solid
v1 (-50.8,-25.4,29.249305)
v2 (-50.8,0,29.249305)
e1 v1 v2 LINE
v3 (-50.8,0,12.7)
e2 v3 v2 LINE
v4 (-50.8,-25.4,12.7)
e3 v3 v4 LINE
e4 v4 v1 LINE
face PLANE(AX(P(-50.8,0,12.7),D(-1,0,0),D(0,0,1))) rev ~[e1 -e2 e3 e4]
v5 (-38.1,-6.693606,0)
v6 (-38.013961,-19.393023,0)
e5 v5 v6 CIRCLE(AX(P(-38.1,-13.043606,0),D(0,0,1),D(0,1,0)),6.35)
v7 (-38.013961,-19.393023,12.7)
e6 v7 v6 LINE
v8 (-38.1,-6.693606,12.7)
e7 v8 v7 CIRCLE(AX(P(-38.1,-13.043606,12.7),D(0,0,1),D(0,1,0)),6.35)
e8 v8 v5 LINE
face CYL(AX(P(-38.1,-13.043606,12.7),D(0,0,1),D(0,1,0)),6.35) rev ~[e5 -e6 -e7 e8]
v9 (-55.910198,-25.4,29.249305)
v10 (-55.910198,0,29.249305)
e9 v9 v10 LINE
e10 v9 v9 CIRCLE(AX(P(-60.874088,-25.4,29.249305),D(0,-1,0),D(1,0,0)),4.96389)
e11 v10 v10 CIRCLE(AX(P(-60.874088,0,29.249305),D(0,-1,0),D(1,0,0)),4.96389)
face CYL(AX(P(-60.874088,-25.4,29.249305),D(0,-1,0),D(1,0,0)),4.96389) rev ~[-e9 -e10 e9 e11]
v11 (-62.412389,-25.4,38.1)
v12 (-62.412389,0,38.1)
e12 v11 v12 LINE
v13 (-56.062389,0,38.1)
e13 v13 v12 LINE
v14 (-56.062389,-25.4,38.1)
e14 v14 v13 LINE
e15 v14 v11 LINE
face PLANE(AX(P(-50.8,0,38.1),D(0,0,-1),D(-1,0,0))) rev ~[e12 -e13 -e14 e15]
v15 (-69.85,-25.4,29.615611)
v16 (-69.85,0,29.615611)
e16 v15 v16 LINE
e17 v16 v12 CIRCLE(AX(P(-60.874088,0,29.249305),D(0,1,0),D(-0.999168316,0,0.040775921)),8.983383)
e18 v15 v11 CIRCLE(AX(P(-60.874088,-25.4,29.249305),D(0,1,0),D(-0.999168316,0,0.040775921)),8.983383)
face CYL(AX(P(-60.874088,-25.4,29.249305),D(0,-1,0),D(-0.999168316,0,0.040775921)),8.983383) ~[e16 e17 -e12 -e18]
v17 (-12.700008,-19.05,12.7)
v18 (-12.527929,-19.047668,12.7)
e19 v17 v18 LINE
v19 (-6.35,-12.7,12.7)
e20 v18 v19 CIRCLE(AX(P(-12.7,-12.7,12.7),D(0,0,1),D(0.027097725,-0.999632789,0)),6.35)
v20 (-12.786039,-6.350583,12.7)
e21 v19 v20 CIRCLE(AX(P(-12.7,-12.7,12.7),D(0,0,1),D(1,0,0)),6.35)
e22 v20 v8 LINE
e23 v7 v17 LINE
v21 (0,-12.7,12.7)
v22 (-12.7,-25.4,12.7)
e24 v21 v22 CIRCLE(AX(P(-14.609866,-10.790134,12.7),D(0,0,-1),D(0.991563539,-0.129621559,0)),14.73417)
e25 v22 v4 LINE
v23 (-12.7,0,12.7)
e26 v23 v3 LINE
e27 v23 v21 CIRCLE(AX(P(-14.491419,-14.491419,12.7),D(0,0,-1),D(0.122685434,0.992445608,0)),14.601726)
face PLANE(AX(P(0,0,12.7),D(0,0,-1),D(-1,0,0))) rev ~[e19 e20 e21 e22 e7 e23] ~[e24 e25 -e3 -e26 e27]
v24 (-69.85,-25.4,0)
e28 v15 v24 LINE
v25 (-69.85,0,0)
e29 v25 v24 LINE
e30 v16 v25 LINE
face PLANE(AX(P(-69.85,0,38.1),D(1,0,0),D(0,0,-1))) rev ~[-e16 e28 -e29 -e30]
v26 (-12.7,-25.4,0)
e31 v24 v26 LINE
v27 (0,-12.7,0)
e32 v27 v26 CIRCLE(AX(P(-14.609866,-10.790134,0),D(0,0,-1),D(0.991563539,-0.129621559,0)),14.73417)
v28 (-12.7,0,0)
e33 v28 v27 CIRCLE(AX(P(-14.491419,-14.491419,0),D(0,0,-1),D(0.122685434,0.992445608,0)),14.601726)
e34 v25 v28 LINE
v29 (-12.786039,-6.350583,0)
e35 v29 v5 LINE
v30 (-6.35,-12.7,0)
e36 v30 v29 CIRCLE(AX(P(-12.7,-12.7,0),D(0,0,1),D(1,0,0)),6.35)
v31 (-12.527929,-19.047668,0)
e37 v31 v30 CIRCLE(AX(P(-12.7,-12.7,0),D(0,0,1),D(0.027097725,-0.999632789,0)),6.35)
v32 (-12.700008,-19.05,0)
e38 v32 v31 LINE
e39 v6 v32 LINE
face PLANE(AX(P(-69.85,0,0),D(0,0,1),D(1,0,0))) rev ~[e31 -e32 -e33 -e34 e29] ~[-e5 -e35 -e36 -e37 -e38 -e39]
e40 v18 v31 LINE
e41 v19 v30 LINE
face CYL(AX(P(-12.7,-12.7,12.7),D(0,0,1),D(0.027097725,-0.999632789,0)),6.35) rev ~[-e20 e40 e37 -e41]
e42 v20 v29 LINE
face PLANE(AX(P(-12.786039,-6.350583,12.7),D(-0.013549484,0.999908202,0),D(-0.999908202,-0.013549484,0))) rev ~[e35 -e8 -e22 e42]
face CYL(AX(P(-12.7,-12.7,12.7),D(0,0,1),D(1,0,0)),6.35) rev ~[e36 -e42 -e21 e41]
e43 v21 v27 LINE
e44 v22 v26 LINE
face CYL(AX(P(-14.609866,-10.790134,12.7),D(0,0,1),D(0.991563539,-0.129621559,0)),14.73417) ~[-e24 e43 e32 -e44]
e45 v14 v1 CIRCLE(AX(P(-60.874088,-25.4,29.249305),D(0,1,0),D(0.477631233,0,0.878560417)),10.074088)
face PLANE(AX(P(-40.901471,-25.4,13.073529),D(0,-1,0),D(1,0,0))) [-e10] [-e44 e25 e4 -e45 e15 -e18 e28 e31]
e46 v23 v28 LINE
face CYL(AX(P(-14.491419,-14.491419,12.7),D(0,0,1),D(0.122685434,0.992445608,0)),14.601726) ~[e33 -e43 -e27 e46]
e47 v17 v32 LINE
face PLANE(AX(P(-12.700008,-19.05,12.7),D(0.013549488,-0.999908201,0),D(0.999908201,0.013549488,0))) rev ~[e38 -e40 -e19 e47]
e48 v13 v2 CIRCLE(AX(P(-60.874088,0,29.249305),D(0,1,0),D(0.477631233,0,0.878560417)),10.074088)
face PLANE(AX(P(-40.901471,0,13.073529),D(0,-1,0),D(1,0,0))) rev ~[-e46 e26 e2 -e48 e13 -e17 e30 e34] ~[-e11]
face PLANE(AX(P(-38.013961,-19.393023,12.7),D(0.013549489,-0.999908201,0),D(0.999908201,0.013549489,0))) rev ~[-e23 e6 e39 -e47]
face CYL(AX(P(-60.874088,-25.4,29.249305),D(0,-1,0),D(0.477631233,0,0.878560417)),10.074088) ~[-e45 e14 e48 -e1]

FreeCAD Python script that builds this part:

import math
import FreeCAD as App
import Part
import Sketcher

V = App.Vector
Q = App.Units.Quantity


def add_polygon(sketch, points):
    """Adds a closed chain of lines whose ends are joined by coincident constraints."""
    first, n = sketch.GeometryCount, len(points)
    for a, b in zip(points, points[1:] + points[:1]):
        sketch.addGeometry(Part.LineSegment(App.Vector(*a, 0), App.Vector(*b, 0)), False)
    for i in range(n):
        sketch.addConstraint(Sketcher.Constraint("Coincident", first + i, 2, first + (i + 1) % n, 1))

doc = App.newDocument("Part")
body = doc.addObject("PartDesign::Body", "Body")

sketch1 = body.newObject("Sketcher::SketchObject", "Sketch")
sketch1.AttachmentSupport = (doc.getObject("XZ_Plane"), [""])
sketch1.MapMode = "FlatFace"
add_polygon(sketch1, [(-69.85, 38.1), (-69.85, 0), (0, 0), (0, 12.7), (-50.8, 12.7), (-50.8, 38.1)])
sketch1.addConstraint([
    Sketcher.Constraint("Vertical", 0),
    Sketcher.Constraint("Horizontal", 1),
    Sketcher.Constraint("Vertical", 2),
    Sketcher.Constraint("Horizontal", 3),
    Sketcher.Constraint("Vertical", 4),
    Sketcher.Constraint("Horizontal", 5),
    Sketcher.Constraint("Coincident", 1, 2, -1, 1),
    Sketcher.Constraint("DistanceX", 3, 2, 3, 1, Q("2 in")),
    Sketcher.Constraint("DistanceY", 4, 1, 4, 2, Q("1 in")),
    Sketcher.Constraint("DistanceY", 0, 2, 0, 1, Q("1.5 in")),
    Sketcher.Constraint("DistanceX", 1, 1, 1, 2, Q("2.75 in")),
])
pad1 = body.newObject("PartDesign::Pad", "Pad")
pad1.Profile = sketch1
pad1.Length = Q("1 in")

sketch2 = body.newObject("Sketcher::SketchObject", "Sketch001")
sketch2.AttachmentSupport = (doc.getObject("XY_Plane"), [""])
sketch2.MapMode = "FlatFace"
sketch2.AttachmentOffset = App.Placement(V(0, 0, 0.5 * 25.4), App.Rotation())
sketch2.addGeometry([
    Part.ArcOfCircle(Part.Circle(V(-14.491419, -14.491419, 0), V(0, 0, 1), 14.601726), math.radians(7.047112), math.radians(82.952888)),
    Part.LineSegment(V(0, -12.7, 0), V(0, 0, 0)),
    Part.LineSegment(V(0, 0, 0), V(-12.7, 0, 0)),
    Part.LineSegment(V(0, -25.4, 0), V(0, -12.7, 0)),
    Part.ArcOfCircle(Part.Circle(V(-14.609866, -10.790134, 0), V(0, 0, 1), 14.73417), math.radians(-82.552276), math.radians(-7.447724)),
    Part.LineSegment(V(-12.7, -25.4, 0), V(0, -25.4, 0)),
], False)
sketch2.addConstraint([
    Sketcher.Constraint("Coincident", 0, 1, 1, 1),
    Sketcher.Constraint("Coincident", 1, 2, 2, 1),
    Sketcher.Constraint("Coincident", 2, 2, 0, 2),
    Sketcher.Constraint("Coincident", 3, 2, 4, 2),
    Sketcher.Constraint("Coincident", 4, 1, 5, 1),
    Sketcher.Constraint("Coincident", 5, 2, 3, 1),
    Sketcher.Constraint("Vertical", 1),
    Sketcher.Constraint("Horizontal", 2),
    Sketcher.Constraint("Vertical", 3),
    Sketcher.Constraint("Horizontal", 5),
    Sketcher.Constraint("Coincident", 1, 2, -1, 1),
    Sketcher.Constraint("Coincident", 3, 2, 0, 1),
    Sketcher.Constraint("Vertical", 2, 2, 4, 1),
    Sketcher.Constraint("Equal", 5, 1),
    Sketcher.Constraint("Equal", 1, 3),
    Sketcher.Constraint("DistanceX", 2, 2, 2, 1, Q("0.5 in")),
    Sketcher.Constraint("Radius", 4, Q("14.73417 mm")),
    Sketcher.Constraint("Radius", 0, Q("14.601726 mm")),
])
pocket1 = body.newObject("PartDesign::Pocket", "Pocket")
pocket1.Profile = sketch2
pocket1.Length = Q("0.5 in")

sketch3 = body.newObject("Sketcher::SketchObject", "Sketch002")
sketch3.AttachmentSupport = (doc.getObject("XY_Plane"), [""])
sketch3.MapMode = "FlatFace"
sketch3.AttachmentOffset = App.Placement(V(0, 0, 0.5 * 25.4), App.Rotation())
sketch3.addGeometry([
    Part.ArcOfCircle(Part.Circle(V(-38.1, -13.043606, 0), V(0, 0, 1), 6.35), math.radians(90), math.radians(270.776352)),
    Part.LineSegment(V(-38.013961, -19.393023, 0), V(-12.700008, -19.05, 0)),
    Part.LineSegment(V(-12.700008, -19.05, 0), V(-12.527929, -19.047668, 0)),
    Part.ArcOfCircle(Part.Circle(V(-12.7, -12.7, 0), V(0, 0, 1), 6.35), math.radians(-88.447225), math.radians(0)),
    Part.ArcOfCircle(Part.Circle(V(-12.7, -12.7, 0), V(0, 0, 1), 6.35), math.radians(0), math.radians(90.776352)),
    Part.LineSegment(V(-12.786039, -6.350583, 0), V(-38.1, -6.693606, 0)),
], False)
sketch3.addConstraint([
    Sketcher.Constraint("Tangent", 0, 2, 1, 1),
    Sketcher.Constraint("Coincident", 1, 2, 2, 1),
    Sketcher.Constraint("Coincident", 2, 2, 3, 1),
    Sketcher.Constraint("Tangent", 3, 2, 4, 1),
    Sketcher.Constraint("Tangent", 4, 2, 5, 1),
    Sketcher.Constraint("Coincident", 5, 2, 0, 1),
    Sketcher.Constraint("Equal", 0, 3),
    Sketcher.Constraint("Equal", 3, 4),
    Sketcher.Constraint("Parallel", 1, 2),
    Sketcher.Constraint("Parallel", 1, 5),
    Sketcher.Constraint("Horizontal", 4, 3, 3, 2),
    Sketcher.Constraint("Vertical", 0, 3, 5, 2),
    Sketcher.Constraint("Radius", 0, Q("0.25 in")),
    Sketcher.Constraint("DistanceX", 0, 3, 3, 3, Q("1 in")),
    Sketcher.Constraint("DistanceX", 0, 3, -1, 1, Q("1.5 in")),
    Sketcher.Constraint("DistanceY", 3, 3, -1, 1, Q("0.5 in")),
    Sketcher.Constraint("DistanceY", 1, 2, -1, 1, Q("0.75 in")),
    Sketcher.Constraint("DistanceX", 0, 2, -1, 1, Q("38.013961 mm")),
])
pocket2 = body.newObject("PartDesign::Pocket", "Pocket001")
pocket2.Profile = sketch3
pocket2.Length = Q("0.5 in")

sketch4 = body.newObject("Sketcher::SketchObject", "Sketch003")
sketch4.AttachmentSupport = (doc.getObject("XZ_Plane"), [""])
sketch4.MapMode = "FlatFace"
sketch4.AttachmentOffset = App.Placement(V(0, 0, 1 * 25.4), App.Rotation())
sketch4.addGeometry([
    Part.LineSegment(V(-69.85, 38.1, 0), V(-69.85, 29.615611, 0)),
    Part.ArcOfCircle(Part.Circle(V(-60.874088, 29.249305, 0), V(0, 0, 1), 8.983383), math.radians(99.859835), math.radians(177.663064)),
    Part.LineSegment(V(-62.412389, 38.1, 0), V(-69.85, 38.1, 0)),
    Part.LineSegment(V(-50.8, 38.1, 0), V(-56.062389, 38.1, 0)),
    Part.ArcOfCircle(Part.Circle(V(-60.874088, 29.249305, 0), V(0, 0, 1), 10.074088), math.radians(0), math.radians(61.469192)),
    Part.LineSegment(V(-50.8, 29.249305, 0), V(-50.8, 38.1, 0)),
], False)
sketch4.addConstraint([
    Sketcher.Constraint("Coincident", 0, 2, 1, 2),
    Sketcher.Constraint("Coincident", 1, 1, 2, 1),
    Sketcher.Constraint("Coincident", 2, 2, 0, 1),
    Sketcher.Constraint("Coincident", 3, 2, 4, 2),
    Sketcher.Constraint("Tangent", 4, 1, 5, 1),
    Sketcher.Constraint("Coincident", 5, 2, 3, 1),
    Sketcher.Constraint("Vertical", 0),
    Sketcher.Constraint("Horizontal", 2),
    Sketcher.Constraint("Horizontal", 3),
    Sketcher.Constraint("Vertical", 5),
    Sketcher.Constraint("Coincident", 4, 3, 1, 3),
    Sketcher.Constraint("Horizontal", 2, 2, 3, 2),
    Sketcher.Constraint("DistanceX", 4, 1, -1, 1, Q("2 in")),
    Sketcher.Constraint("DistanceY", -1, 1, 1, 1, Q("1.5 in")),
    Sketcher.Constraint("DistanceX", 0, 2, -1, 1, Q("2.75 in")),
    Sketcher.Constraint("DistanceX", 1, 1, 3, 2, Q("0.25 in")),
    Sketcher.Constraint("Radius", 4, Q("10.074088 mm")),
    Sketcher.Constraint("Radius", 1, Q("8.983383 mm")),
])
pocket3 = body.newObject("PartDesign::Pocket", "Pocket002")
pocket3.Profile = sketch4
pocket3.Length = Q("1 in")

sketch5 = body.newObject("Sketcher::SketchObject", "Sketch004")
sketch5.AttachmentSupport = (doc.getObject("XZ_Plane"), [""])
sketch5.MapMode = "FlatFace"
sketch5.AttachmentOffset = App.Placement(V(0, 0, 1 * 25.4), App.Rotation())
sketch5.addGeometry(Part.Circle(V(-60.874088, 29.249305, 0), V(0, 0, 1), 4.96389), False)
sketch5.addConstraint([
    Sketcher.Constraint("Diameter", 0, Q("9.927781 mm")),
    Sketcher.Constraint("DistanceX", 0, 3, -1, 1, Q("60.874088 mm")),
    Sketcher.Constraint("DistanceY", -1, 1, 0, 3, Q("29.249305 mm")),
])
pocket4 = body.newObject("PartDesign::Pocket", "Pocket003")
pocket4.Profile = sketch5
pocket4.Length = Q("1 in")

doc.recompute()
